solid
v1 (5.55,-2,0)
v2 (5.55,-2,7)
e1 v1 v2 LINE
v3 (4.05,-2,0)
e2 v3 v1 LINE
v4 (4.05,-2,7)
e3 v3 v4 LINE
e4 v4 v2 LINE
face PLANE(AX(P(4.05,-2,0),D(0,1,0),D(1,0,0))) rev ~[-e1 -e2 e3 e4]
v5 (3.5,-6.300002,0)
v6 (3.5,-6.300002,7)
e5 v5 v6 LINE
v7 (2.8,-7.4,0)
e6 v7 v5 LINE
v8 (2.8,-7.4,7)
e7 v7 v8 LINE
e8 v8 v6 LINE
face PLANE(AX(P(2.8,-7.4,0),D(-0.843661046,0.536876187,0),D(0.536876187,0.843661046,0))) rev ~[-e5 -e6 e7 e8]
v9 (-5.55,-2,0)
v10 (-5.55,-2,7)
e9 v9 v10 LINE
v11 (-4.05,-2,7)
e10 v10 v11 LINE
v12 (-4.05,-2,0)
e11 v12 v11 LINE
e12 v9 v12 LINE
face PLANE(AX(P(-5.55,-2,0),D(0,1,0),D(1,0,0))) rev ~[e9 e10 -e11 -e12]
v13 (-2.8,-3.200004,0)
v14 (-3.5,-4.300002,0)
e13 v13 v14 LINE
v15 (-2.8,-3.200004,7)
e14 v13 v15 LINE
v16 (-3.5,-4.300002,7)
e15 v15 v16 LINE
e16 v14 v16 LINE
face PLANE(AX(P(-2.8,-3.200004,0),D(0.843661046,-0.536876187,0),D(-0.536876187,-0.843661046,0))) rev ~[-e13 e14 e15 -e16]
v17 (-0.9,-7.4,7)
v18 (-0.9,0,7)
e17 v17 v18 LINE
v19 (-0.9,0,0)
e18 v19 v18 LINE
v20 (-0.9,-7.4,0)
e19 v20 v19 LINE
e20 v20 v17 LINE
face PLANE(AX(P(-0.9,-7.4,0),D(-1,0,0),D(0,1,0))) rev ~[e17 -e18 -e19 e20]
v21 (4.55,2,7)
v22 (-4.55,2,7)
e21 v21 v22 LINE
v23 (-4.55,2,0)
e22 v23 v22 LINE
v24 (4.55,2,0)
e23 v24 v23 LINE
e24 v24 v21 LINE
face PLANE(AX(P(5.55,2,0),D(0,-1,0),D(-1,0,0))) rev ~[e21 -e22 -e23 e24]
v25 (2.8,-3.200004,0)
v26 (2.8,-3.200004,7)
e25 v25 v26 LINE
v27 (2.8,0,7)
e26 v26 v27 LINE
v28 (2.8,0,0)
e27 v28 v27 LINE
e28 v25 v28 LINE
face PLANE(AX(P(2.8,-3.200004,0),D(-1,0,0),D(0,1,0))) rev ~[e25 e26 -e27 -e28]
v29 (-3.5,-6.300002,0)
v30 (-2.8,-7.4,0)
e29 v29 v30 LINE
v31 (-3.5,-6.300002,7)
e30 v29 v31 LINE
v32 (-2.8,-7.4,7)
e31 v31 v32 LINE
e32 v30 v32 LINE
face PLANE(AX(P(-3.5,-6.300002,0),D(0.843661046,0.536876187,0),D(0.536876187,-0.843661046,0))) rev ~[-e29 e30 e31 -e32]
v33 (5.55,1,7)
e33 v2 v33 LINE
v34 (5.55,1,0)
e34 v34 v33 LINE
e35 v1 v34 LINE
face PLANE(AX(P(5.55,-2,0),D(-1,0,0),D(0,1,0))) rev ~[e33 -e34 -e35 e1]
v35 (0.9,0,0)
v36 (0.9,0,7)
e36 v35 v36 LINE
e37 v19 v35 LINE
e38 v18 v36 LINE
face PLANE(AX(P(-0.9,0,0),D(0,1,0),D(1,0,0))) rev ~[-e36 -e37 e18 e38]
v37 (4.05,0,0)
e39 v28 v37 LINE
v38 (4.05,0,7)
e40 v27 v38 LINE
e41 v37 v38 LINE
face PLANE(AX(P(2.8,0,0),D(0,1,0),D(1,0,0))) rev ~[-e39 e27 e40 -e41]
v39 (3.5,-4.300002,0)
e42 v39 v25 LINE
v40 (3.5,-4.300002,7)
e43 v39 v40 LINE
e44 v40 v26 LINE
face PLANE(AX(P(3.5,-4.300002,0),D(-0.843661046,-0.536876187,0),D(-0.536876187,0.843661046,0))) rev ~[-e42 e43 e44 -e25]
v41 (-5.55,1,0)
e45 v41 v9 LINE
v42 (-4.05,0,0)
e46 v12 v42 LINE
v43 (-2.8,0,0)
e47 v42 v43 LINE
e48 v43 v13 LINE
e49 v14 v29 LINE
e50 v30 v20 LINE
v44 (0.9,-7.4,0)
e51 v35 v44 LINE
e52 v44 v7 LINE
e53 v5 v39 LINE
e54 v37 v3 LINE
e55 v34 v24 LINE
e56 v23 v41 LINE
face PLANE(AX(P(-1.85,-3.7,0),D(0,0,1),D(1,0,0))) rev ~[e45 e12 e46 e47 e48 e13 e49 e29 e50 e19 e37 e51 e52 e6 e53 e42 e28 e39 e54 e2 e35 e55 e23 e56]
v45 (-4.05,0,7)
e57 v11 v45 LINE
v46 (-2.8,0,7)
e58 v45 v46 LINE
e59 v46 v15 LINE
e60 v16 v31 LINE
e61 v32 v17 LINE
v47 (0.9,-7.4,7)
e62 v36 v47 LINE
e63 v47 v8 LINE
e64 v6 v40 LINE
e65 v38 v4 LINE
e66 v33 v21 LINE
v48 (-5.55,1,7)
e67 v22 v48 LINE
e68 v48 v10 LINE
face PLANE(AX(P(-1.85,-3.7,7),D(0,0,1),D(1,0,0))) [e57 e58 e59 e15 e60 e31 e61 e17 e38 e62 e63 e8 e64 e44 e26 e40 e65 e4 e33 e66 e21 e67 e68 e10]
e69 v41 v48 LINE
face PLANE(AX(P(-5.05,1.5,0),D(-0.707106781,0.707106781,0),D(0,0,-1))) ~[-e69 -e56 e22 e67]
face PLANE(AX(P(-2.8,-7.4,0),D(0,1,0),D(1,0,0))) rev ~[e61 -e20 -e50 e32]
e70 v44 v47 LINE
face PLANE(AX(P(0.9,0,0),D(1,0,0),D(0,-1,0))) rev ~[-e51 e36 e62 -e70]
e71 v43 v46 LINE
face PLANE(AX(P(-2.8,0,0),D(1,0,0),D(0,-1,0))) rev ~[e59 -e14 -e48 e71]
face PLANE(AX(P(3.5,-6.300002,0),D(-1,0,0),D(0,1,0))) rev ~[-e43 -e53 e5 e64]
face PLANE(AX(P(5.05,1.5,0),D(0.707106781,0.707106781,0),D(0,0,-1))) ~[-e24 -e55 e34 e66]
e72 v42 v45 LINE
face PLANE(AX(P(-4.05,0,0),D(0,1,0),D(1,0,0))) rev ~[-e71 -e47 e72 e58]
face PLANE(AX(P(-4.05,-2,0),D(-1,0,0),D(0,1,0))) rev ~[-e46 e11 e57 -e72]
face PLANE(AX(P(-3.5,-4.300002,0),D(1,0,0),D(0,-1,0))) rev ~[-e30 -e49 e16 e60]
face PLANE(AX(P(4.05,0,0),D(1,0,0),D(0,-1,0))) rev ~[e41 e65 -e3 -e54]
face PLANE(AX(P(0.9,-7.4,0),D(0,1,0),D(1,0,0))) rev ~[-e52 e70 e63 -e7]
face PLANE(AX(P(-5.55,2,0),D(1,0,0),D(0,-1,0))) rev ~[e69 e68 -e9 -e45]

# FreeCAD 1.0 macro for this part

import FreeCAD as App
import Part
import Sketcher
from FreeCAD import Vector


def edges_at(feature, points):
    """Names of the edges that pass closest to the given points."""
    edges = feature.Shape.Edges
    near = lambda p: min(range(len(edges)), key=lambda i: edges[i].distToShape(Part.Vertex(*p))[0])
    return sorted({f"Edge{near(p) + 1}" for p in points})

doc = App.newDocument("Part")
body = doc.addObject("PartDesign::Body", "Body")

sketch1 = body.newObject("Sketcher::SketchObject", "Sketch")
sketch1.AttachmentSupport = (doc.getObject("XY_Plane"), [""])
sketch1.MapMode = "FlatFace"
sketch1.addGeometry([
    Part.LineSegment(Vector(-0.9, -7.4, 0), Vector(-0.9, 0, 0)),
    Part.LineSegment(Vector(-0.9, 0, 0), Vector(0.9, 0, 0)),
    Part.LineSegment(Vector(0.9, 0, 0), Vector(0.9, -7.4, 0)),
    Part.LineSegment(Vector(0.9, -7.4, 0), Vector(2.8, -7.4, 0)),
    Part.LineSegment(Vector(2.8, -7.4, 0), Vector(3.5, -6.3, 0)),
    Part.LineSegment(Vector(3.5, -6.3, 0), Vector(3.5, -4.3, 0)),
    Part.LineSegment(Vector(3.5, -4.3, 0), Vector(2.8, -3.2, 0)),
    Part.LineSegment(Vector(2.8, -3.2, 0), Vector(2.8, 0, 0)),
    Part.LineSegment(Vector(2.8, 0, 0), Vector(4, 0, 0)),
    Part.LineSegment(Vector(4, 0, 0), Vector(4, -2, 0)),
    Part.LineSegment(Vector(4, -2, 0), Vector(5.5, -2, 0)),
    Part.LineSegment(Vector(5.5, -2, 0), Vector(5.5, 2, 0)),
    Part.LineSegment(Vector(5.5, 2, 0), Vector(-5.5, 2, 0)),
    Part.LineSegment(Vector(-5.5, 2, 0), Vector(-5.5, -2, 0)),
    Part.LineSegment(Vector(-5.5, -2, 0), Vector(-4, -2, 0)),
    Part.LineSegment(Vector(-4, -2, 0), Vector(-4, 0, 0)),
    Part.LineSegment(Vector(-4, 0, 0), Vector(-2.8, 0, 0)),
    Part.LineSegment(Vector(-2.8, 0, 0), Vector(-2.8, -3.2, 0)),
    Part.LineSegment(Vector(-2.8, -3.2, 0), Vector(-3.5, -4.3, 0)),
    Part.LineSegment(Vector(-3.5, -4.3, 0), Vector(-3.5, -6.3, 0)),
    Part.LineSegment(Vector(-3.5, -6.3, 0), Vector(-2.8, -7.4, 0)),
    Part.LineSegment(Vector(-2.8, -7.4, 0), Vector(-0.9, -7.4, 0)),
], False)
sketch1.addConstraint([
    Sketcher.Constraint("Coincident", 0, 2, 1, 1),
    Sketcher.Constraint("Coincident", 1, 2, 2, 1),
    Sketcher.Constraint("Coincident", 2, 2, 3, 1),
    Sketcher.Constraint("Coincident", 3, 2, 4, 1),
    Sketcher.Constraint("Coincident", 4, 2, 5, 1),
    Sketcher.Constraint("Coincident", 5, 2, 6, 1),
    Sketcher.Constraint("Coincident", 6, 2, 7, 1),
    Sketcher.Constraint("Coincident", 7, 2, 8, 1),
    Sketcher.Constraint("Coincident", 8, 2, 9, 1),
    Sketcher.Constraint("Coincident", 9, 2, 10, 1),
    Sketcher.Constraint("Coincident", 10, 2, 11, 1),
    Sketcher.Constraint("Coincident", 11, 2, 12, 1),
    Sketcher.Constraint("Coincident", 12, 2, 13, 1),
    Sketcher.Constraint("Coincident", 13, 2, 14, 1),
    Sketcher.Constraint("Coincident", 14, 2, 15, 1),
    Sketcher.Constraint("Coincident", 15, 2, 16, 1),
    Sketcher.Constraint("Coincident", 16, 2, 17, 1),
    Sketcher.Constraint("Coincident", 17, 2, 18, 1),
    Sketcher.Constraint("Coincident", 18, 2, 19, 1),
    Sketcher.Constraint("Coincident", 19, 2, 20, 1),
    Sketcher.Constraint("Coincident", 20, 2, 21, 1),
    Sketcher.Constraint("Coincident", 21, 2, 0, 1),
    Sketcher.Constraint("Vertical", 0),
    Sketcher.Constraint("Horizontal", 1),
    Sketcher.Constraint("Vertical", 2),
    Sketcher.Constraint("Horizontal", 3),
    Sketcher.Constraint("Vertical", 5),
    Sketcher.Constraint("Vertical", 7),
    Sketcher.Constraint("Horizontal", 8),
    Sketcher.Constraint("Vertical", 9),
    Sketcher.Constraint("Horizontal", 10),
    Sketcher.Constraint("Vertical", 11),
    Sketcher.Constraint("Horizontal", 12),
    Sketcher.Constraint("Vertical", 13),
    Sketcher.Constraint("Horizontal", 14),
    Sketcher.Constraint("Vertical", 15),
    Sketcher.Constraint("Horizontal", 16),
    Sketcher.Constraint("Vertical", 17),
    Sketcher.Constraint("Vertical", 19),
    Sketcher.Constraint("Horizontal", 21),
    Sketcher.Constraint("Symmetric", 0, 2, 1, 2, -1, 1),
    Sketcher.Constraint("Symmetric", 10, 2, 12, 2, -1, 1),
    Sketcher.Constraint("Symmetric", 8, 2, 15, 2, -1, 1),
    Sketcher.Constraint("Symmetric", 7, 2, 16, 2, -2),
    Sketcher.Constraint("Symmetric", 5, 2, 18, 2, -2),
    Sketcher.Constraint("Symmetric", 3, 2, 20, 2, -2),
    Sketcher.Constraint("Parallel", 4, 18),
    Sketcher.Constraint("Parallel", 6, 20),
    Sketcher.Constraint("Horizontal", 10, 2, 13, 2),
    Sketcher.Constraint("Horizontal", 6, 2, 17, 2),
    Sketcher.Constraint("Vertical", 3, 2, 6, 2),
    Sketcher.Constraint("Equal", 5, 9),
    Sketcher.Constraint("DistanceY", 5, 1, 5, 2, 2.0),
    Sketcher.Constraint("DistanceX", 1, 1, 1, 2, 1.8),
    Sketcher.Constraint("DistanceX", 3, 1, 3, 2, 1.9),
    Sketcher.Constraint("DistanceX", 10, 1, 10, 2, 1.5),
    Sketcher.Constraint("DistanceX", 12, 2, 12, 1, 11.1),
    Sketcher.Constraint("DistanceY", 0, 1, 0, 2, 7.4),
    Sketcher.Constraint("DistanceX", -1, 1, 4, 2, 3.5),
    Sketcher.Constraint("DistanceY", 3, 2, 4, 2, 1.099998),
])
pad1 = body.newObject("PartDesign::Pad", "Pad")
pad1.Profile = sketch1
pad1.Length = 7
doc.recompute()

chamfer = body.newObject("PartDesign::Chamfer", "Chamfer")
chamfer.Base = (pad1, edges_at(pad1, [(-5.55, 2, 3.5), (5.55, 2, 3.5)]))
chamfer.Size = 1

doc.recompute()
